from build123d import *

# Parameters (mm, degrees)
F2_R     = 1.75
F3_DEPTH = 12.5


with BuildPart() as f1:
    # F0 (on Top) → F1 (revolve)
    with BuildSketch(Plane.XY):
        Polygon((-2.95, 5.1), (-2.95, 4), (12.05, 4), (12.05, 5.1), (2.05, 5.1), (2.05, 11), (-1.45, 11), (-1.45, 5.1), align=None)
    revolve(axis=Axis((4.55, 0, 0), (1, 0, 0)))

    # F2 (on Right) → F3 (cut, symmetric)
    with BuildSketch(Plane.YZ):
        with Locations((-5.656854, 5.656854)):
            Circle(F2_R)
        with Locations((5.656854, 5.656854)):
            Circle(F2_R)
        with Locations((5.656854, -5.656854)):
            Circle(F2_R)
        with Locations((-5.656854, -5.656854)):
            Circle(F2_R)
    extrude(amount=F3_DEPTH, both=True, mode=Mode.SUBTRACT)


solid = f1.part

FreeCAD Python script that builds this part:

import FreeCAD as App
import Part
import Sketcher
from FreeCAD import Vector
Q = App.Units.Quantity


def add_polygon(sketch, points):
    """Adds a closed chain of lines whose ends are joined by coincident constraints."""
    first, n = sketch.GeometryCount, len(points)
    for a, b in zip(points, points[1:] + points[:1]):
        sketch.addGeometry(Part.LineSegment(App.Vector(*a, 0), App.Vector(*b, 0)), False)
    for i in range(n):
        sketch.addConstraint(Sketcher.Constraint("Coincident", first + i, 2, first + (i + 1) % n, 1))

doc = App.newDocument("Part")
params = doc.addObject("Spreadsheet::Sheet", "Params")
for row, (alias, value) in enumerate([
    ("sketch1_width", "15 mm"),
    ("sketch1_width2", "10 mm"),
    ("sketch1_width3", "3.5 mm"),
    ("sketch1_height", "1.1 mm"),
    ("sketch1_height2", "5.9 mm"),
    ("revolution_angle", "360 deg"),
    ("sketch2_diameter", "3.5 mm"),
    ("pocket1_length", "25 mm"),
], start=1):
    params.set(f"A{row}", alias)
    params.set(f"B{row}", "=" + value)
    params.setAlias(f"B{row}", alias)

body = doc.addObject("PartDesign::Body", "Body")

# Sketch on XY plane
sketch1 = body.newObject("Sketcher::SketchObject", "Sketch")
sketch1.AttachmentSupport = (doc.getObject("XY_Plane"), [""])
sketch1.MapMode = "FlatFace"
add_polygon(sketch1, [(-3, 5.1), (-3, 4), (12.1, 4), (12.1, 5.1), (2, 5.1), (2, 11), (-1.4, 11), (-1.4, 5.1)])  # lines 0-7
sketch1.addConstraint(Sketcher.Constraint("Vertical", 0))
sketch1.addConstraint(Sketcher.Constraint("Horizontal", 1))
sketch1.addConstraint(Sketcher.Constraint("Vertical", 2))
sketch1.addConstraint(Sketcher.Constraint("Horizontal", 3))
sketch1.addConstraint(Sketcher.Constraint("Vertical", 4))
sketch1.addConstraint(Sketcher.Constraint("Horizontal", 5))
sketch1.addConstraint(Sketcher.Constraint("Vertical", 6))
sketch1.addConstraint(Sketcher.Constraint("Horizontal", 7))
sketch1.addConstraint(Sketcher.Constraint("Horizontal", 3, 2, 6, 2))
sketch1.addConstraint(Sketcher.Constraint("DistanceX", 1, 1, 1, 2, Q("15 mm")))
sketch1.addConstraint(Sketcher.Constraint("DistanceX", 3, 2, 3, 1, Q("10 mm")))
sketch1.addConstraint(Sketcher.Constraint("DistanceX", 5, 2, 5, 1, Q("3.5 mm")))
sketch1.addConstraint(Sketcher.Constraint("DistanceY", 0, 2, 0, 1, Q("1.1 mm")))
sketch1.addConstraint(Sketcher.Constraint("DistanceY", 4, 1, 4, 2, Q("5.9 mm")))
sketch1.addConstraint(Sketcher.Constraint("DistanceY", -1, 1, 0, 2, Q("4 mm")))
sketch1.addConstraint(Sketcher.Constraint("DistanceX", 0, 2, -1, 1, Q("2.95 mm")))
sketch1.setExpression("Constraints[17]", "Params.sketch1_width")
sketch1.setExpression("Constraints[18]", "Params.sketch1_width2")
sketch1.setExpression("Constraints[19]", "Params.sketch1_width3")
sketch1.setExpression("Constraints[20]", "Params.sketch1_height")
sketch1.setExpression("Constraints[21]", "Params.sketch1_height2")
revolution = body.newObject("PartDesign::Revolution", "Revolution")
revolution.Profile = sketch1
revolution.ReferenceAxis = (sketch1, ["H_Axis"])
revolution.setExpression("Angle", "Params.revolution_angle")

# Sketch on YZ plane
sketch2 = body.newObject("Sketcher::SketchObject", "Sketch001")
sketch2.AttachmentSupport = (doc.getObject("YZ_Plane"), [""])
sketch2.MapMode = "FlatFace"
sketch2.addGeometry(Part.Circle(Vector(-5.7, 5.7, 0), Vector(0, 0, 1), 1.8), False)
sketch2.addGeometry(Part.Circle(Vector(5.7, 5.7, 0), Vector(0, 0, 1), 1.8), False)
sketch2.addGeometry(Part.Circle(Vector(5.7, -5.7, 0), Vector(0, 0, 1), 1.8), False)
sketch2.addGeometry(Part.Circle(Vector(-5.7, -5.7, 0), Vector(0, 0, 1), 1.8), False)
sketch2.addConstraint(Sketcher.Constraint("Equal", 0, 1))
sketch2.addConstraint(Sketcher.Constraint("Equal", 1, 2))
sketch2.addConstraint(Sketcher.Constraint("Equal", 2, 3))
sketch2.addConstraint(Sketcher.Constraint("Symmetric", 0, 3, 2, 3, -1, 1))
sketch2.addConstraint(Sketcher.Constraint("Symmetric", 1, 3, 3, 3, -1, 1))
sketch2.addConstraint(Sketcher.Constraint("Symmetric", 0, 3, 1, 3, -2))
sketch2.addConstraint(Sketcher.Constraint("Diameter", 0, Q("3.5 mm")))
sketch2.addConstraint(Sketcher.Constraint("DistanceX", 0, 3, -1, 1, Q("5.656854 mm")))
sketch2.addConstraint(Sketcher.Constraint("DistanceY", -1, 1, 0, 3, Q("5.656854 mm")))
sketch2.setExpression("Constraints[6]", "Params.sketch2_diameter")
pocket1 = body.newObject("PartDesign::Pocket", "Pocket")
pocket1.Profile = sketch2
pocket1.setExpression("Length", "Params.pocket1_length")
pocket1.Midplane = True

doc.recompute()
